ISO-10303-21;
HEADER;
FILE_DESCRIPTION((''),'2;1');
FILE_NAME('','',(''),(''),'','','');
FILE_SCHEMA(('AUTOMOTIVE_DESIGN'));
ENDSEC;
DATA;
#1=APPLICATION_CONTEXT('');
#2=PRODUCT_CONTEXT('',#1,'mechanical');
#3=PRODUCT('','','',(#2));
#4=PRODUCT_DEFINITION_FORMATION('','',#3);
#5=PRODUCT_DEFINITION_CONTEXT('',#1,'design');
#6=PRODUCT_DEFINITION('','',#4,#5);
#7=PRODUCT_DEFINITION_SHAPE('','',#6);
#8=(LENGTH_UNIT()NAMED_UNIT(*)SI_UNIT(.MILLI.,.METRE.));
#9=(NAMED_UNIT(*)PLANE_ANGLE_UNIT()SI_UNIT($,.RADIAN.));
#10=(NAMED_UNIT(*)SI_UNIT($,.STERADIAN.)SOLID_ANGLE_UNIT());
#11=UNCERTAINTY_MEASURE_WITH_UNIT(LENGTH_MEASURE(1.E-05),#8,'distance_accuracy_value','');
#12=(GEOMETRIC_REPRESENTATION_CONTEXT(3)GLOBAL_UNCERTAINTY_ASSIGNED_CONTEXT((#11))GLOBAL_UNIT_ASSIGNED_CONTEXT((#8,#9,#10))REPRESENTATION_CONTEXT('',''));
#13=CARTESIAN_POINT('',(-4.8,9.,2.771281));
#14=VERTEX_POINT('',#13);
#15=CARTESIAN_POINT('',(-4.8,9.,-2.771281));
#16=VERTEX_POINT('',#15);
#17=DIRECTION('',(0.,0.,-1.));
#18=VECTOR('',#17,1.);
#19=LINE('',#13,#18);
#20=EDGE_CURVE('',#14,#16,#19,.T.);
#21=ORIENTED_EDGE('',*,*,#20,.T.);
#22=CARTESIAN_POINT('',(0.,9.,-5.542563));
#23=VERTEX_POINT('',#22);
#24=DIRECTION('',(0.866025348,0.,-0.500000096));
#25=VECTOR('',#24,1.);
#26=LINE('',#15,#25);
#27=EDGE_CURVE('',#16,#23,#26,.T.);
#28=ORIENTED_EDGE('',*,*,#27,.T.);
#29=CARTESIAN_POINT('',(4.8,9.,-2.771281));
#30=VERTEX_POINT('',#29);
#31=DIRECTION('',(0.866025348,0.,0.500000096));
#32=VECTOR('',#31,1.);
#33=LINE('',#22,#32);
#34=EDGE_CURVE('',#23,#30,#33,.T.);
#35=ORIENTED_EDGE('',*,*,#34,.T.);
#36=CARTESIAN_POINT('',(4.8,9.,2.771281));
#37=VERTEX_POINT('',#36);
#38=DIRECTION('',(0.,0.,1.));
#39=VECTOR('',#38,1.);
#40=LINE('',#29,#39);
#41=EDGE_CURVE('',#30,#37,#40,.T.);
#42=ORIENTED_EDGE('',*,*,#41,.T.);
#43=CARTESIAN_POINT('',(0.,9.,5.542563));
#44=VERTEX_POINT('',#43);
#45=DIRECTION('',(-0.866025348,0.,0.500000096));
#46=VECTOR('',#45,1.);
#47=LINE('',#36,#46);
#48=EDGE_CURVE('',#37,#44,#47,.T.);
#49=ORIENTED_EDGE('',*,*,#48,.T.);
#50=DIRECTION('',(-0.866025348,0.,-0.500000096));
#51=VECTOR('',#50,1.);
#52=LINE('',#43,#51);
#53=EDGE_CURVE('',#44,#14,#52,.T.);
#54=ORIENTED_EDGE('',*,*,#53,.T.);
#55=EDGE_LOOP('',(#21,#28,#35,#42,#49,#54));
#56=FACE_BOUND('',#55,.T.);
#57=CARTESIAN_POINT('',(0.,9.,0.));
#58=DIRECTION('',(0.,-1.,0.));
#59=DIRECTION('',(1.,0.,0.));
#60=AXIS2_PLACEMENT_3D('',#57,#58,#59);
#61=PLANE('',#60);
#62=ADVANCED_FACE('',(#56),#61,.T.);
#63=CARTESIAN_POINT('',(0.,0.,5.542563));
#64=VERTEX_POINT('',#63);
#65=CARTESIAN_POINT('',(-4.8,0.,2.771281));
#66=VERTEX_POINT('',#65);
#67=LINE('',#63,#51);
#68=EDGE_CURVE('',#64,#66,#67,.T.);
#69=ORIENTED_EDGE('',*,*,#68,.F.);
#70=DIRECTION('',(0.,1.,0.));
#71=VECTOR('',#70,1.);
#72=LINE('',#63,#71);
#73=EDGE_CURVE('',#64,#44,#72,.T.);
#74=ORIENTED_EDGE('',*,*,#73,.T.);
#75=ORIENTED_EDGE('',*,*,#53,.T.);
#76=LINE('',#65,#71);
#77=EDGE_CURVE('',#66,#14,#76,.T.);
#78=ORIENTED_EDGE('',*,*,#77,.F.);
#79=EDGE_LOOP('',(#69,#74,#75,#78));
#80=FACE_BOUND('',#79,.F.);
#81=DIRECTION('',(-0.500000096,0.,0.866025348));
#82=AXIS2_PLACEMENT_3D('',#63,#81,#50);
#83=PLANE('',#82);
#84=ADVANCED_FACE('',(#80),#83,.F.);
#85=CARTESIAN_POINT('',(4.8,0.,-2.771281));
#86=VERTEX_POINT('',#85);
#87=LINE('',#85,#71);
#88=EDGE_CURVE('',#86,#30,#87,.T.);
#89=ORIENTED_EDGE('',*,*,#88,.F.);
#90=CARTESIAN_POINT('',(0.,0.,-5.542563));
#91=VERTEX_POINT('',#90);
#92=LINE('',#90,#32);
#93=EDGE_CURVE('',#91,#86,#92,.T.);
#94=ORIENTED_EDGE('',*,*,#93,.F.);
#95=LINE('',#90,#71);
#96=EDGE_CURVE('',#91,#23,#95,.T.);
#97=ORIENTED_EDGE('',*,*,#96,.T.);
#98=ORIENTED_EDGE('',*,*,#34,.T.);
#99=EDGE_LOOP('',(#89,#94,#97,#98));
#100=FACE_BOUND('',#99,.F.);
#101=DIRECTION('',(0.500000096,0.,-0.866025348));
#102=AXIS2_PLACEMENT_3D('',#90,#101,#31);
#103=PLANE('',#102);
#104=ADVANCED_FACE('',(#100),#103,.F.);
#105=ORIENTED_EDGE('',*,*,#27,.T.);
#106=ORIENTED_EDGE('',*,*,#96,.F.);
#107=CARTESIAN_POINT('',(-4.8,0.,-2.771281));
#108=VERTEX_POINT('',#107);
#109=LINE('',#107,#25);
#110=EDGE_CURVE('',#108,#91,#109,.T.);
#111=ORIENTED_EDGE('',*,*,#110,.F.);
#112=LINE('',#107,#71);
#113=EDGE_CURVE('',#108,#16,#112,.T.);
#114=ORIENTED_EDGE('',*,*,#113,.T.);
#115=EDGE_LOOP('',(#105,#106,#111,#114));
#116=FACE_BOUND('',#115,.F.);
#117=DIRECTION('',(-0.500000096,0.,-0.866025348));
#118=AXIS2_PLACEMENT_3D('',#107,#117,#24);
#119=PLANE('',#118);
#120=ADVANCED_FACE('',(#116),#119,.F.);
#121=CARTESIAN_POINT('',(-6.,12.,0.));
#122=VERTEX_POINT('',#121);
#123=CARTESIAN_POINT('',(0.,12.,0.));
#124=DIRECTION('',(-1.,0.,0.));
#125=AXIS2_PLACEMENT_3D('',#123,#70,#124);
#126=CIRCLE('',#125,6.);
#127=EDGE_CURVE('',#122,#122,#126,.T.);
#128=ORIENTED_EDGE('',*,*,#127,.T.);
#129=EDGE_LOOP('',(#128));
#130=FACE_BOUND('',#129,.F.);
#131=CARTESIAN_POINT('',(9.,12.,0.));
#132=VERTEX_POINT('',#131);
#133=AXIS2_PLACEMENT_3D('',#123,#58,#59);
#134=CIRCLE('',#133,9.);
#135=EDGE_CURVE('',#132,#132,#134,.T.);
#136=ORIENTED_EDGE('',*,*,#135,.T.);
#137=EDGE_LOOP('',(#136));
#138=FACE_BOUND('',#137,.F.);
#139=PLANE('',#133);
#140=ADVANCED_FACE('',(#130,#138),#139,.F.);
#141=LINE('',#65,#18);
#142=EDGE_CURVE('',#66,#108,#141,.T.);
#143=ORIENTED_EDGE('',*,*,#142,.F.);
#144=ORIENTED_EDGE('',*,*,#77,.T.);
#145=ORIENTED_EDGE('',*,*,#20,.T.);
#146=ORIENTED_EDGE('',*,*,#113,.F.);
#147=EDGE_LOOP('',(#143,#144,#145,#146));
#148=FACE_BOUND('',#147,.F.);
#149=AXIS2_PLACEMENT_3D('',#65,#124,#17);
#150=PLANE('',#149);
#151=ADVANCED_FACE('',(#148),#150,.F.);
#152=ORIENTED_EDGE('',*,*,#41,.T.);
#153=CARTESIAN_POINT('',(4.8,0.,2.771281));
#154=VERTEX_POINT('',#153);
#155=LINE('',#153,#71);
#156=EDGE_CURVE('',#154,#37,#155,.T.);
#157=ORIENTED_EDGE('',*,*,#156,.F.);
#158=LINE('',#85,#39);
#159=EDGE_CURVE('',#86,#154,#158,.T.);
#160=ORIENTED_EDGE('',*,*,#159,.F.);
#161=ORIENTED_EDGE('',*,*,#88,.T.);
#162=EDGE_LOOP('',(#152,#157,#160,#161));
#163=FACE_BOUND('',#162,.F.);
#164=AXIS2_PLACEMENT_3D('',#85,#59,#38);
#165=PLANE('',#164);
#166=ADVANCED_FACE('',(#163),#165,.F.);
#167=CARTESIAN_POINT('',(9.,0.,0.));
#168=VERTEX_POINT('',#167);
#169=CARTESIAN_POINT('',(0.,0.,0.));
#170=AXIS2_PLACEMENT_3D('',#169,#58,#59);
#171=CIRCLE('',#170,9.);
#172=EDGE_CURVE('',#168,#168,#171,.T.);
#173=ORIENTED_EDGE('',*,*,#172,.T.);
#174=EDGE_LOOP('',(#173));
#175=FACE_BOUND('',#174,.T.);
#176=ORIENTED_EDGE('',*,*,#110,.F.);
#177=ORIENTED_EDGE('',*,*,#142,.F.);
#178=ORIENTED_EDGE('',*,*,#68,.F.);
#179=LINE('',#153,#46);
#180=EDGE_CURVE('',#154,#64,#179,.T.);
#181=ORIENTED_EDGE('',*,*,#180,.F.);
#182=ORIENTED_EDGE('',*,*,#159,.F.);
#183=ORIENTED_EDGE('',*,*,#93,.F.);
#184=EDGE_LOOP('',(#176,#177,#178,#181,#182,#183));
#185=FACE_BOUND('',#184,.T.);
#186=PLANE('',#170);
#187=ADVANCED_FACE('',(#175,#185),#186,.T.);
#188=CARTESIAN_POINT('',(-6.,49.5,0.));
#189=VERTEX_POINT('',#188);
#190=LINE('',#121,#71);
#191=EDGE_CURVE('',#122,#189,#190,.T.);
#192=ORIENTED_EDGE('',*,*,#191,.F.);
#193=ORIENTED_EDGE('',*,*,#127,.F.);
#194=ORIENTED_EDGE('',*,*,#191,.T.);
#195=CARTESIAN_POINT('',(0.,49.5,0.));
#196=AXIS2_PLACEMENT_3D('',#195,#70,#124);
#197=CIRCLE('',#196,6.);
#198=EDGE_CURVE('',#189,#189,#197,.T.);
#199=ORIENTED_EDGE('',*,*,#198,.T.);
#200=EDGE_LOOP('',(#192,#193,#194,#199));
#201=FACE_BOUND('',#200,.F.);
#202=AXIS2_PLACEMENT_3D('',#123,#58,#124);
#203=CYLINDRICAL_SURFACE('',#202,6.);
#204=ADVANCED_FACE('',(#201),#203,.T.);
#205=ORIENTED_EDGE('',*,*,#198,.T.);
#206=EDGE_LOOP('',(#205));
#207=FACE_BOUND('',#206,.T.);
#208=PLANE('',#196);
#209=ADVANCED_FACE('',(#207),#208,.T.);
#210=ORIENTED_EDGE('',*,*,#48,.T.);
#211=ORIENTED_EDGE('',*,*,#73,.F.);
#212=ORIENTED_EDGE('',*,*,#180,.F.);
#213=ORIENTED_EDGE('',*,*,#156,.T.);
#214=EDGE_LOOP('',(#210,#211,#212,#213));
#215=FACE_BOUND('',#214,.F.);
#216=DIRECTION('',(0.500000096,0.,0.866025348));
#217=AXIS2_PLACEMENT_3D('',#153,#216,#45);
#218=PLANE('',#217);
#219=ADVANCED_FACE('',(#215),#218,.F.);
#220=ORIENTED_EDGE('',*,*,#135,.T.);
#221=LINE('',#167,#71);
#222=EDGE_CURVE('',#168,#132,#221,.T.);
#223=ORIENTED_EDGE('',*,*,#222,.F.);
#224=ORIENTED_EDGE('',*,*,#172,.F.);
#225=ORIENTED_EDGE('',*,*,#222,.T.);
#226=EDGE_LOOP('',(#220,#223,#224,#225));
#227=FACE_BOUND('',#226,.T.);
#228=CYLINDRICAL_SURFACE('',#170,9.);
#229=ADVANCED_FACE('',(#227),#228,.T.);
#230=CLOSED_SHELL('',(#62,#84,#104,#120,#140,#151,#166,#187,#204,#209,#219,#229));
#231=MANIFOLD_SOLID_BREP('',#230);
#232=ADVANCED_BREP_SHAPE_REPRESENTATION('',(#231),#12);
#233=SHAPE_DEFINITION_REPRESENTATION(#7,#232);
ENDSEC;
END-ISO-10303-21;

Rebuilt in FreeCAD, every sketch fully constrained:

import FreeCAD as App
import Part
import Sketcher
from FreeCAD import Vector
Q = App.Units.Quantity


def add_polygon(sketch, points):
    """Adds a closed chain of lines whose ends are joined by coincident constraints."""
    first, n = sketch.GeometryCount, len(points)
    for a, b in zip(points, points[1:] + points[:1]):
        sketch.addGeometry(Part.LineSegment(App.Vector(*a, 0), App.Vector(*b, 0)), False)
    for i in range(n):
        sketch.addConstraint(Sketcher.Constraint("Coincident", first + i, 2, first + (i + 1) % n, 1))

doc = App.newDocument("Part")
body = doc.addObject("PartDesign::Body", "Body")

sketch1 = body.newObject("Sketcher::SketchObject", "Sketch")
sketch1.AttachmentSupport = (doc.getObject("XZ_Plane"), [""])
sketch1.MapMode = "FlatFace"
sketch1.addGeometry(Part.Circle(Vector(0, 0, 0), Vector(0, 0, 1), 9), False)
sketch1.addConstraint(Sketcher.Constraint("Coincident", 0, 3, -1, 1))
sketch1.addConstraint(Sketcher.Constraint("Diameter", 0, Q("18 mm")))
pad1 = body.newObject("PartDesign::Pad", "Pad")
pad1.Profile = sketch1
pad1.Length = 12
pad1.Reversed = True

sketch2 = body.newObject("Sketcher::SketchObject", "Sketch001")
sketch2.AttachmentSupport = (doc.getObject("XZ_Plane"), [""])
sketch2.MapMode = "FlatFace"
sketch2.AttachmentOffset = App.Placement(Vector(0, 0, -12), App.Rotation())
sketch2.addGeometry(Part.Circle(Vector(0, 0, 0), Vector(0, 0, 1), 6), False)
sketch2.addConstraint(Sketcher.Constraint("Coincident", 0, 3, -1, 1))
sketch2.addConstraint(Sketcher.Constraint("Diameter", 0, Q("12 mm")))
pad2 = body.newObject("PartDesign::Pad", "Pad001")
pad2.Profile = sketch2
pad2.Length = 37.5
pad2.Reversed = True

sketch3 = body.newObject("Sketcher::SketchObject", "Sketch002")
sketch3.AttachmentSupport = (doc.getObject("XZ_Plane"), [""])
sketch3.MapMode = "FlatFace"
add_polygon(sketch3, [(5, -3), (5, 3), (0, 6), (-5, 3), (-5, -3), (0, -6)])
sketch3.addConstraint(Sketcher.Constraint("Vertical", 0))
sketch3.addConstraint(Sketcher.Constraint("Vertical", 3))
sketch3.addConstraint(Sketcher.Constraint("Symmetric", 0, 2, 3, 2, -1, 1))
sketch3.addConstraint(Sketcher.Constraint("Symmetric", 1, 2, 4, 2, -1, 1))
sketch3.addConstraint(Sketcher.Constraint("PointOnObject", 1, 2, -2))
sketch3.addConstraint(Sketcher.Constraint("Parallel", 2, 5))
sketch3.addConstraint(Sketcher.Constraint("Horizontal", 0, 2, 2, 2))
sketch3.addConstraint(Sketcher.Constraint("Angle", 1, Q("149.999994 deg")))
sketch3.addConstraint(Sketcher.Constraint("DistanceX", -1, 1, 0, 2, Q("4.8 mm")))
sketch3.addConstraint(Sketcher.Constraint("DistanceY", 0, 1, 0, 2, Q("5.542562 mm")))
pocket1 = body.newObject("PartDesign::Pocket", "Pocket")
pocket1.Profile = sketch3
pocket1.Length = 9

doc.recompute()
